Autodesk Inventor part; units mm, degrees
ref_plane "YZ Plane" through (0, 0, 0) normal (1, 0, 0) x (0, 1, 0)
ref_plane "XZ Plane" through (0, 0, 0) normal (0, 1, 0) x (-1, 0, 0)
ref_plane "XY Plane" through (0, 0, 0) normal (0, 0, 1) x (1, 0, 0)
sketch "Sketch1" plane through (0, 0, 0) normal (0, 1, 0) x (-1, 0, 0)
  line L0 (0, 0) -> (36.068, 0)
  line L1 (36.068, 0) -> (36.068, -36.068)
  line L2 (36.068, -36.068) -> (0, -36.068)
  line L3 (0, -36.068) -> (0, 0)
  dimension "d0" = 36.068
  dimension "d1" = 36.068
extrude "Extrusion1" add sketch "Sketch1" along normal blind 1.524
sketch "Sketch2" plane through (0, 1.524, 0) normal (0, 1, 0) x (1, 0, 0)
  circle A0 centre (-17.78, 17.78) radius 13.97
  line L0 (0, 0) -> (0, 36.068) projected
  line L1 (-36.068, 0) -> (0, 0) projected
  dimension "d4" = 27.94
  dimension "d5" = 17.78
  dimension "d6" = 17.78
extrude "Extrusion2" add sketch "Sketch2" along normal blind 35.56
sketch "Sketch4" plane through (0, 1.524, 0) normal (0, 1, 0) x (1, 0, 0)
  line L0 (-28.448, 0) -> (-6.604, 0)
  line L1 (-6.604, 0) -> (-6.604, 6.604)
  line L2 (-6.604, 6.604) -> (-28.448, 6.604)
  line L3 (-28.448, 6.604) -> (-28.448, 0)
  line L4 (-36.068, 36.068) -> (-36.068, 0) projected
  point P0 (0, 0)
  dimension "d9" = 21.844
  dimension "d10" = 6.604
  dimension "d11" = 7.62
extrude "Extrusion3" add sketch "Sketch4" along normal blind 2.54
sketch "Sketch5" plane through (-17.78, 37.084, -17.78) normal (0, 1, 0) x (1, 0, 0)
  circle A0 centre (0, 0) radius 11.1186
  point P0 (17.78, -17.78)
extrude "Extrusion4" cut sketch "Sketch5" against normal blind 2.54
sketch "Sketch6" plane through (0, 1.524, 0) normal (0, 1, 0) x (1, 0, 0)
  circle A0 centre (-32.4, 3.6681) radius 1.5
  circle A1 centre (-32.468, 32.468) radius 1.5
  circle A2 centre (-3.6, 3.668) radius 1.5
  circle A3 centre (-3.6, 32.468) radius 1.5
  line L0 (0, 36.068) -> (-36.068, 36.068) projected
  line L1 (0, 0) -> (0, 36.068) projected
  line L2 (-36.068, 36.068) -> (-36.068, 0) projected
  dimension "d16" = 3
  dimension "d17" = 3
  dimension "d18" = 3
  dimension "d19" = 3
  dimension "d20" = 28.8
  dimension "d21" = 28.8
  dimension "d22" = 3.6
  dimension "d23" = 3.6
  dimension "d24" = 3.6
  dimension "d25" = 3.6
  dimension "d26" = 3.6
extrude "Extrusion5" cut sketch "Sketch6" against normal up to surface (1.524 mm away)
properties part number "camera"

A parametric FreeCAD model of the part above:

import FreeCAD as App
import Part
import Sketcher
from FreeCAD import Vector
Q = App.Units.Quantity


def add_polygon(sketch, points):
    """Adds a closed chain of lines whose ends are joined by coincident constraints."""
    first, n = sketch.GeometryCount, len(points)
    for a, b in zip(points, points[1:] + points[:1]):
        sketch.addGeometry(Part.LineSegment(App.Vector(*a, 0), App.Vector(*b, 0)), False)
    for i in range(n):
        sketch.addConstraint(Sketcher.Constraint("Coincident", first + i, 2, first + (i + 1) % n, 1))

doc = App.newDocument("Part")
body = doc.addObject("PartDesign::Body", "Body")

# Sketch on XZ plane
sketch1 = body.newObject("Sketcher::SketchObject", "Sketch")
sketch1.AttachmentSupport = (doc.getObject("XZ_Plane"), [""])
sketch1.MapMode = "FlatFace"
add_polygon(sketch1, [(-36, 0), (0, 0), (0, -36), (-36, -36)])  # lines 0-3
sketch1.addConstraint([
    Sketcher.Constraint("Horizontal", 0),
    Sketcher.Constraint("Vertical", 1),
    Sketcher.Constraint("Horizontal", 2),
    Sketcher.Constraint("Vertical", 3),
    Sketcher.Constraint("Coincident", 0, 2, -1, 1),
    Sketcher.Constraint("Equal", 2, 1),
    Sketcher.Constraint("DistanceX", 0, 1, 0, 2, Q("1.42 in")),
])
pad1 = body.newObject("PartDesign::Pad", "Pad")
pad1.Profile = sketch1
pad1.Length = Q("0.06 in")
pad1.Reversed = True

# Sketch on XZ plane
sketch2 = body.newObject("Sketcher::SketchObject", "Sketch001")
sketch2.AttachmentSupport = (doc.getObject("XZ_Plane"), [""])
sketch2.MapMode = "FlatFace"
sketch2.AttachmentOffset = App.Placement(Vector(0, 0, -0.06 * 25.4), App.Rotation())
sketch2.addGeometry(Part.Circle(Vector(-18, -18, 0), Vector(0, 0, 1), 14), False)
sketch2.addConstraint([
    Sketcher.Constraint("Diameter", 0, Q("1.1 in")),
    Sketcher.Constraint("DistanceX", 0, 3, -1, 1, Q("0.7 in")),
    Sketcher.Constraint("DistanceY", 0, 3, -1, 1, Q("0.7 in")),
])
pad2 = body.newObject("PartDesign::Pad", "Pad001")
pad2.Profile = sketch2
pad2.Length = Q("1.4 in")
pad2.Reversed = True

# Sketch on XZ plane
sketch3 = body.newObject("Sketcher::SketchObject", "Sketch002")
sketch3.AttachmentSupport = (doc.getObject("XZ_Plane"), [""])
sketch3.MapMode = "FlatFace"
sketch3.AttachmentOffset = App.Placement(Vector(0, 0, -0.06 * 25.4), App.Rotation())
add_polygon(sketch3, [(-28, -7), (-28, 0), (-7, 0), (-7, -7)])  # lines 0-3
sketch3.addConstraint([
    Sketcher.Constraint("Vertical", 0),
    Sketcher.Constraint("Horizontal", 1),
    Sketcher.Constraint("Vertical", 2),
    Sketcher.Constraint("Horizontal", 3),
    Sketcher.Constraint("PointOnObject", 0, 2, -1),
    Sketcher.Constraint("DistanceX", 1, 1, 1, 2, Q("0.86 in")),
    Sketcher.Constraint("DistanceY", 0, 1, 0, 2, Q("0.26 in")),
    Sketcher.Constraint("DistanceX", 1, 2, -1, 1, Q("0.26 in")),
])
pad3 = body.newObject("PartDesign::Pad", "Pad002")
pad3.Profile = sketch3
pad3.Length = Q("0.1 in")
pad3.Reversed = True

# Sketch on XZ plane
sketch4 = body.newObject("Sketcher::SketchObject", "Sketch003")
sketch4.AttachmentSupport = (doc.getObject("XZ_Plane"), [""])
sketch4.MapMode = "FlatFace"
sketch4.AttachmentOffset = App.Placement(Vector(0, 0, -1.46 * 25.4), App.Rotation())
sketch4.addGeometry(Part.Circle(Vector(-18, -18, 0), Vector(0, 0, 1), 11), False)
sketch4.addConstraint([
    Sketcher.Constraint("DistanceX", 0, 3, -1, 1, Q("0.7 in")),
    Sketcher.Constraint("DistanceY", 0, 3, -1, 1, Q("0.7 in")),
    Sketcher.Constraint("Diameter", 0, Q("22.2372 mm")),
])
pocket1 = body.newObject("PartDesign::Pocket", "Pocket")
pocket1.Profile = sketch4
pocket1.Length = Q("0.1 in")
pocket1.Reversed = True

# Sketch on XZ plane
sketch5 = body.newObject("Sketcher::SketchObject", "Sketch004")
sketch5.AttachmentSupport = (doc.getObject("XZ_Plane"), [""])
sketch5.MapMode = "FlatFace"
sketch5.AttachmentOffset = App.Placement(Vector(0, 0, -0.06 * 25.4), App.Rotation())
sketch5.addGeometry([
    Part.Circle(Vector(-32.4, -3.7, 0), Vector(0, 0, 1), 1.5),
    Part.Circle(Vector(-32.5, -32.5, 0), Vector(0, 0, 1), 1.5),
    Part.Circle(Vector(-3.6, -3.7, 0), Vector(0, 0, 1), 1.5),
    Part.Circle(Vector(-3.6, -32.5, 0), Vector(0, 0, 1), 1.5),
], False)
sketch5.addConstraint([
    Sketcher.Constraint("Equal", 0, 1),
    Sketcher.Constraint("Equal", 1, 2),
    Sketcher.Constraint("Equal", 2, 3),
    Sketcher.Constraint("Horizontal", 0, 3, 2, 3),
    Sketcher.Constraint("Horizontal", 1, 3, 3, 3),
    Sketcher.Constraint("Vertical", 2, 3, 3, 3),
    Sketcher.Constraint("Diameter", 0, Q("0.1181 in")),
    Sketcher.Constraint("DistanceX", 2, 3, -1, 1, Q("3.6 mm")),
    Sketcher.Constraint("DistanceY", 1, 3, 0, 3, Q("28.8 mm")),
    Sketcher.Constraint("DistanceX", 0, 3, 2, 3, Q("28.8 mm")),
    Sketcher.Constraint("DistanceY", 2, 3, -1, 1, Q("0.1444 in")),
    Sketcher.Constraint("DistanceX", 1, 3, -1, 1, Q("32.468 mm")),
])
pocket2 = body.newObject("PartDesign::Pocket", "Pocket001")
pocket2.Profile = sketch5
pocket2.Length = Q("0.06 in")
pocket2.Reversed = True

doc.recompute()
